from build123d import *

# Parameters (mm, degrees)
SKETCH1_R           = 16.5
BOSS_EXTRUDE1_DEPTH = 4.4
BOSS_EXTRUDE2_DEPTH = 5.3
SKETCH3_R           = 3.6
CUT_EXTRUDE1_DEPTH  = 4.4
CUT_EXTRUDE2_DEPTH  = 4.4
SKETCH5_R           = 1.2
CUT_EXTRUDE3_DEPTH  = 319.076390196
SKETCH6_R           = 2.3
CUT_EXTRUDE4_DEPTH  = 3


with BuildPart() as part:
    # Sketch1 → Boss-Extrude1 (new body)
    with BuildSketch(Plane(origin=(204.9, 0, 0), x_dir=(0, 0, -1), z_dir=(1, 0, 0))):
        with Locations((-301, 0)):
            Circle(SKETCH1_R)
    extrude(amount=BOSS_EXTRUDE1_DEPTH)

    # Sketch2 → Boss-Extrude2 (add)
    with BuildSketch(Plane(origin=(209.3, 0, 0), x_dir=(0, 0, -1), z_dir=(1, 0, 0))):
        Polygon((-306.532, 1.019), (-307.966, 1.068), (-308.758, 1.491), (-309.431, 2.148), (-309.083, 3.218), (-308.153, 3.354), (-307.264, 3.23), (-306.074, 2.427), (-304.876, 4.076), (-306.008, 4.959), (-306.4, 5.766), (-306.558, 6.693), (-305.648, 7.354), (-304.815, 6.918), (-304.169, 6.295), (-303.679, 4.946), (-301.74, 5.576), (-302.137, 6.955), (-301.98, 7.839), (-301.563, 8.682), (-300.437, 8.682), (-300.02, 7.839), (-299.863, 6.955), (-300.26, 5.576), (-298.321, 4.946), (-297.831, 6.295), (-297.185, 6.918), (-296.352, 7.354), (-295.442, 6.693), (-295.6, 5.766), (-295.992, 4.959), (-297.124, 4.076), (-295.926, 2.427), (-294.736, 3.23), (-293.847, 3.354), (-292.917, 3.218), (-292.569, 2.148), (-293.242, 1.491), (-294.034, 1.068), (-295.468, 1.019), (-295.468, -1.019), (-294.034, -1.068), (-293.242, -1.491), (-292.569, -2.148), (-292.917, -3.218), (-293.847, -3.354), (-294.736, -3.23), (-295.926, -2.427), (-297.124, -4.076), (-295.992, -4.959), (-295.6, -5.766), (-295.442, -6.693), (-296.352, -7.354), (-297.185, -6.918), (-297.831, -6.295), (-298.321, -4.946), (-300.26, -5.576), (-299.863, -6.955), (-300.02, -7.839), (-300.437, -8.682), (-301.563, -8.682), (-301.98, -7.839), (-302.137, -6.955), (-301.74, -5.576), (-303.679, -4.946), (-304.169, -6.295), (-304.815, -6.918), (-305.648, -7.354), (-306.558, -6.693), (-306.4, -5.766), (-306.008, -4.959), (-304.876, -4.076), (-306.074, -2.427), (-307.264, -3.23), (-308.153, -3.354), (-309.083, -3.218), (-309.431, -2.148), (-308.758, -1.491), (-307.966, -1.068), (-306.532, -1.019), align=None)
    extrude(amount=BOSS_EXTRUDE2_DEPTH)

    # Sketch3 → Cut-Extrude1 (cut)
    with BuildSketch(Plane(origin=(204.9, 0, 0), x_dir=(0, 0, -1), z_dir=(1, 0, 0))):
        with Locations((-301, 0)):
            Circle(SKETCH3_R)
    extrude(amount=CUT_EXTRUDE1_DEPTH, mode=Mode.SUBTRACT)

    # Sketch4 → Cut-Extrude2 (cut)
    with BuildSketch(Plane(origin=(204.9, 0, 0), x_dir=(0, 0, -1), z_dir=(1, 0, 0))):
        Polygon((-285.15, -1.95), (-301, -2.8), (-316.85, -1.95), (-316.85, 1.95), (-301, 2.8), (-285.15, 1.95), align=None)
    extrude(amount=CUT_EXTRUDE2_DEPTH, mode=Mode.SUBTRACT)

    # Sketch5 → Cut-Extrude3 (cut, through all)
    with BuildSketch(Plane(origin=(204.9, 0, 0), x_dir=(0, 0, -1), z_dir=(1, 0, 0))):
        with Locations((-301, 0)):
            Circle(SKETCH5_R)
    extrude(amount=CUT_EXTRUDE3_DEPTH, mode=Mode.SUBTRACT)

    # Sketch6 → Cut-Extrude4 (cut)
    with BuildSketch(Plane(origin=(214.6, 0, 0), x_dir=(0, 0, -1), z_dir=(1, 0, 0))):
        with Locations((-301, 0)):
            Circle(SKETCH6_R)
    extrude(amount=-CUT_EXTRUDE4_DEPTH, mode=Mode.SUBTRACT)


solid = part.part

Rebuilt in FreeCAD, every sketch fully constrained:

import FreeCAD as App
import Part
import Sketcher

V = App.Vector

doc = App.newDocument("Part")
body = doc.addObject("PartDesign::Body", "Body")

# Sketch on YZ plane
sketch1 = doc.addObject("Sketcher::SketchObject", "Sketch")
body.addObject(sketch1)
sketch1.AttachmentSupport = (doc.YZ_Plane, [""])
sketch1.MapMode = "FlatFace"
sketch1.AttachmentOffset = App.Placement(V(0, 0, 204.9), App.Rotation())
sketch1.addGeometry(Part.Circle(V(0, 301, 0), V(0, 0, 1), 16), False)
sketch1.addConstraint([
    Sketcher.Constraint("PointOnObject", 0, 3, -2),
    Sketcher.Constraint("Diameter", 0, 33.0),
    Sketcher.Constraint("DistanceY", -1, 1, 0, 3, 301.0),
])
pad1 = doc.addObject("PartDesign::Pad", "Pad")
body.addObject(pad1)
pad1.Profile = sketch1
pad1.Length = 4.4

# Sketch on YZ plane
sketch2 = doc.addObject("Sketcher::SketchObject", "Sketch001")
body.addObject(sketch2)
sketch2.AttachmentSupport = (doc.YZ_Plane, [""])
sketch2.MapMode = "FlatFace"
sketch2.AttachmentOffset = App.Placement(V(0, 0, 209.3), App.Rotation())
sketch2.addGeometry([
    Part.LineSegment(V(1.1, 308, 0), V(1, 306.5, 0)),  # 0
    Part.LineSegment(V(1, 306.5, 0), V(-1, 306.5, 0)),  # 1
    Part.LineSegment(V(-1, 306.5, 0), V(-1.1, 308, 0)),  # 2
    Part.LineSegment(V(-1.1, 308, 0), V(-1.5, 308.8, 0)),  # 3
    Part.LineSegment(V(-1.5, 308.8, 0), V(-2.1, 309.4, 0)),  # 4
    Part.LineSegment(V(-2.1, 309.4, 0), V(-3.2, 309.1, 0)),  # 5
    Part.LineSegment(V(-3.2, 309.1, 0), V(-3.4, 308.2, 0)),  # 6
    Part.LineSegment(V(-3.4, 308.2, 0), V(-3.2, 307.3, 0)),  # 7
    Part.LineSegment(V(-3.2, 307.3, 0), V(-2.4, 306.1, 0)),  # 8
    Part.LineSegment(V(-2.4, 306.1, 0), V(-4.1, 304.9, 0)),  # 9
    Part.LineSegment(V(-4.1, 304.9, 0), V(-5, 306, 0)),  # 10
    Part.LineSegment(V(-5, 306, 0), V(-5.8, 306.4, 0)),  # 11
    Part.LineSegment(V(-5.8, 306.4, 0), V(-6.7, 306.6, 0)),  # 12
    Part.LineSegment(V(-6.7, 306.6, 0), V(-7.4, 305.6, 0)),  # 13
    Part.LineSegment(V(-7.4, 305.6, 0), V(-6.9, 304.8, 0)),  # 14
    Part.LineSegment(V(-6.9, 304.8, 0), V(-6.3, 304.2, 0)),  # 15
    Part.LineSegment(V(-6.3, 304.2, 0), V(-4.9, 303.7, 0)),  # 16
    Part.LineSegment(V(-4.9, 303.7, 0), V(-5.6, 301.7, 0)),  # 17
    Part.LineSegment(V(-5.6, 301.7, 0), V(-7, 302.1, 0)),  # 18
    Part.LineSegment(V(-7, 302.1, 0), V(-7.8, 302, 0)),  # 19
    Part.LineSegment(V(-7.8, 302, 0), V(-8.7, 301.6, 0)),  # 20
    Part.LineSegment(V(-8.7, 301.6, 0), V(-8.7, 300.4, 0)),  # 21
    Part.LineSegment(V(-8.7, 300.4, 0), V(-7.8, 300, 0)),  # 22
    Part.LineSegment(V(-7.8, 300, 0), V(-7, 299.9, 0)),  # 23
    Part.LineSegment(V(-7, 299.9, 0), V(-5.6, 300.3, 0)),  # 24
    Part.LineSegment(V(-5.6, 300.3, 0), V(-4.9, 298.3, 0)),  # 25
    Part.LineSegment(V(-4.9, 298.3, 0), V(-6.3, 297.8, 0)),  # 26
    Part.LineSegment(V(-6.3, 297.8, 0), V(-6.9, 297.2, 0)),  # 27
    Part.LineSegment(V(-6.9, 297.2, 0), V(-7.4, 296.4, 0)),  # 28
    Part.LineSegment(V(-7.4, 296.4, 0), V(-6.7, 295.4, 0)),  # 29
    Part.LineSegment(V(-6.7, 295.4, 0), V(-5.8, 295.6, 0)),  # 30
    Part.LineSegment(V(-5.8, 295.6, 0), V(-5, 296, 0)),  # 31
    Part.LineSegment(V(-5, 296, 0), V(-4.1, 297.1, 0)),  # 32
    Part.LineSegment(V(-4.1, 297.1, 0), V(-2.4, 295.9, 0)),  # 33
    Part.LineSegment(V(-2.4, 295.9, 0), V(-3.2, 294.7, 0)),  # 34
    Part.LineSegment(V(-3.2, 294.7, 0), V(-3.4, 293.8, 0)),  # 35
    Part.LineSegment(V(-3.4, 293.8, 0), V(-3.2, 292.9, 0)),  # 36
    Part.LineSegment(V(-3.2, 292.9, 0), V(-2.1, 292.6, 0)),  # 37
    Part.LineSegment(V(-2.1, 292.6, 0), V(-1.5, 293.2, 0)),  # 38
    Part.LineSegment(V(-1.5, 293.2, 0), V(-1.1, 294, 0)),  # 39
    Part.LineSegment(V(-1.1, 294, 0), V(-1, 295.5, 0)),  # 40
    Part.LineSegment(V(-1, 295.5, 0), V(1, 295.5, 0)),  # 41
    Part.LineSegment(V(1, 295.5, 0), V(1.1, 294, 0)),  # 42
    Part.LineSegment(V(1.1, 294, 0), V(1.5, 293.2, 0)),  # 43
    Part.LineSegment(V(1.5, 293.2, 0), V(2.1, 292.6, 0)),  # 44
    Part.LineSegment(V(2.1, 292.6, 0), V(3.2, 292.9, 0)),  # 45
    Part.LineSegment(V(3.2, 292.9, 0), V(3.4, 293.8, 0)),  # 46
    Part.LineSegment(V(3.4, 293.8, 0), V(3.2, 294.7, 0)),  # 47
    Part.LineSegment(V(3.2, 294.7, 0), V(2.4, 295.9, 0)),  # 48
    Part.LineSegment(V(2.4, 295.9, 0), V(4.1, 297.1, 0)),  # 49
    Part.LineSegment(V(4.1, 297.1, 0), V(5, 296, 0)),  # 50
    Part.LineSegment(V(5, 296, 0), V(5.8, 295.6, 0)),  # 51
    Part.LineSegment(V(5.8, 295.6, 0), V(6.7, 295.4, 0)),  # 52
    Part.LineSegment(V(6.7, 295.4, 0), V(7.4, 296.4, 0)),  # 53
    Part.LineSegment(V(7.4, 296.4, 0), V(6.9, 297.2, 0)),  # 54
    Part.LineSegment(V(6.9, 297.2, 0), V(6.3, 297.8, 0)),  # 55
    Part.LineSegment(V(6.3, 297.8, 0), V(4.9, 298.3, 0)),  # 56
    Part.LineSegment(V(4.9, 298.3, 0), V(5.6, 300.3, 0)),  # 57
    Part.LineSegment(V(5.6, 300.3, 0), V(7, 299.9, 0)),  # 58
    Part.LineSegment(V(7, 299.9, 0), V(7.8, 300, 0)),  # 59
    Part.LineSegment(V(7.8, 300, 0), V(8.7, 300.4, 0)),  # 60
    Part.LineSegment(V(8.7, 300.4, 0), V(8.7, 301.6, 0)),  # 61
    Part.LineSegment(V(8.7, 301.6, 0), V(7.8, 302, 0)),  # 62
    Part.LineSegment(V(7.8, 302, 0), V(7, 302.1, 0)),  # 63
    Part.LineSegment(V(7, 302.1, 0), V(5.6, 301.7, 0)),  # 64
    Part.LineSegment(V(5.6, 301.7, 0), V(4.9, 303.7, 0)),  # 65
    Part.LineSegment(V(4.9, 303.7, 0), V(6.3, 304.2, 0)),  # 66
    Part.LineSegment(V(6.3, 304.2, 0), V(6.9, 304.8, 0)),  # 67
    Part.LineSegment(V(6.9, 304.8, 0), V(7.4, 305.6, 0)),  # 68
    Part.LineSegment(V(7.4, 305.6, 0), V(6.7, 306.6, 0)),  # 69
    Part.LineSegment(V(6.7, 306.6, 0), V(5.8, 306.4, 0)),  # 70
    Part.LineSegment(V(5.8, 306.4, 0), V(5, 306, 0)),  # 71
    Part.LineSegment(V(5, 306, 0), V(4.1, 304.9, 0)),  # 72
    Part.LineSegment(V(4.1, 304.9, 0), V(2.4, 306.1, 0)),  # 73
    Part.LineSegment(V(2.4, 306.1, 0), V(3.2, 307.3, 0)),  # 74
    Part.LineSegment(V(3.2, 307.3, 0), V(3.4, 308.2, 0)),  # 75
    Part.LineSegment(V(3.4, 308.2, 0), V(3.2, 309.1, 0)),  # 76
    Part.LineSegment(V(3.2, 309.1, 0), V(2.1, 309.4, 0)),  # 77
    Part.LineSegment(V(2.1, 309.4, 0), V(1.5, 308.8, 0)),  # 78
    Part.LineSegment(V(1.5, 308.8, 0), V(1.1, 308, 0)),  # 79
], False)
sketch2.addConstraint([
    Sketcher.Constraint("Coincident", 0, 2, 1, 1),
    Sketcher.Constraint("Coincident", 1, 2, 2, 1),
    Sketcher.Constraint("Coincident", 2, 2, 3, 1),
    Sketcher.Constraint("Coincident", 3, 2, 4, 1),
    Sketcher.Constraint("Coincident", 4, 2, 5, 1),
    Sketcher.Constraint("Coincident", 5, 2, 6, 1),
    Sketcher.Constraint("Coincident", 6, 2, 7, 1),
    Sketcher.Constraint("Coincident", 7, 2, 8, 1),
    Sketcher.Constraint("Coincident", 8, 2, 9, 1),
    Sketcher.Constraint("Coincident", 9, 2, 10, 1),
    Sketcher.Constraint("Coincident", 10, 2, 11, 1),
    Sketcher.Constraint("Coincident", 11, 2, 12, 1),
    Sketcher.Constraint("Coincident", 12, 2, 13, 1),
    Sketcher.Constraint("Coincident", 13, 2, 14, 1),
    Sketcher.Constraint("Coincident", 14, 2, 15, 1),
    Sketcher.Constraint("Coincident", 15, 2, 16, 1),
    Sketcher.Constraint("Coincident", 16, 2, 17, 1),
    Sketcher.Constraint("Coincident", 17, 2, 18, 1),
    Sketcher.Constraint("Coincident", 18, 2, 19, 1),
    Sketcher.Constraint("Coincident", 19, 2, 20, 1),
    Sketcher.Constraint("Coincident", 20, 2, 21, 1),
    Sketcher.Constraint("Coincident", 21, 2, 22, 1),
    Sketcher.Constraint("Coincident", 22, 2, 23, 1),
    Sketcher.Constraint("Coincident", 23, 2, 24, 1),
    Sketcher.Constraint("Coincident", 24, 2, 25, 1),
    Sketcher.Constraint("Coincident", 25, 2, 26, 1),
    Sketcher.Constraint("Coincident", 26, 2, 27, 1),
    Sketcher.Constraint("Coincident", 27, 2, 28, 1),
    Sketcher.Constraint("Coincident", 28, 2, 29, 1),
    Sketcher.Constraint("Coincident", 29, 2, 30, 1),
    Sketcher.Constraint("Coincident", 30, 2, 31, 1),
    Sketcher.Constraint("Coincident", 31, 2, 32, 1),
    Sketcher.Constraint("Coincident", 32, 2, 33, 1),
    Sketcher.Constraint("Coincident", 33, 2, 34, 1),
    Sketcher.Constraint("Coincident", 34, 2, 35, 1),
    Sketcher.Constraint("Coincident", 35, 2, 36, 1),
    Sketcher.Constraint("Coincident", 36, 2, 37, 1),
    Sketcher.Constraint("Coincident", 37, 2, 38, 1),
    Sketcher.Constraint("Coincident", 38, 2, 39, 1),
    Sketcher.Constraint("Coincident", 39, 2, 40, 1),
    Sketcher.Constraint("Coincident", 40, 2, 41, 1),
    Sketcher.Constraint("Coincident", 41, 2, 42, 1),
    Sketcher.Constraint("Coincident", 42, 2, 43, 1),
    Sketcher.Constraint("Coincident", 43, 2, 44, 1),
    Sketcher.Constraint("Coincident", 44, 2, 45, 1),
    Sketcher.Constraint("Coincident", 45, 2, 46, 1),
    Sketcher.Constraint("Coincident", 46, 2, 47, 1),
    Sketcher.Constraint("Coincident", 47, 2, 48, 1),
    Sketcher.Constraint("Coincident", 48, 2, 49, 1),
    Sketcher.Constraint("Coincident", 49, 2, 50, 1),
    Sketcher.Constraint("Coincident", 50, 2, 51, 1),
    Sketcher.Constraint("Coincident", 51, 2, 52, 1),
    Sketcher.Constraint("Coincident", 52, 2, 53, 1),
    Sketcher.Constraint("Coincident", 53, 2, 54, 1),
    Sketcher.Constraint("Coincident", 54, 2, 55, 1),
    Sketcher.Constraint("Coincident", 55, 2, 56, 1),
    Sketcher.Constraint("Coincident", 56, 2, 57, 1),
    Sketcher.Constraint("Coincident", 57, 2, 58, 1),
    Sketcher.Constraint("Coincident", 58, 2, 59, 1),
    Sketcher.Constraint("Coincident", 59, 2, 60, 1),
    Sketcher.Constraint("Coincident", 60, 2, 61, 1),
    Sketcher.Constraint("Coincident", 61, 2, 62, 1),
    Sketcher.Constraint("Coincident", 62, 2, 63, 1),
    Sketcher.Constraint("Coincident", 63, 2, 64, 1),
    Sketcher.Constraint("Coincident", 64, 2, 65, 1),
    Sketcher.Constraint("Coincident", 65, 2, 66, 1),
    Sketcher.Constraint("Coincident", 66, 2, 67, 1),
    Sketcher.Constraint("Coincident", 67, 2, 68, 1),
    Sketcher.Constraint("Coincident", 68, 2, 69, 1),
    Sketcher.Constraint("Coincident", 69, 2, 70, 1),
    Sketcher.Constraint("Coincident", 70, 2, 71, 1),
    Sketcher.Constraint("Coincident", 71, 2, 72, 1),
    Sketcher.Constraint("Coincident", 72, 2, 73, 1),
    Sketcher.Constraint("Coincident", 73, 2, 74, 1),
    Sketcher.Constraint("Coincident", 74, 2, 75, 1),
    Sketcher.Constraint("Coincident", 75, 2, 76, 1),
    Sketcher.Constraint("Coincident", 76, 2, 77, 1),
    Sketcher.Constraint("Coincident", 77, 2, 78, 1),
    Sketcher.Constraint("Coincident", 78, 2, 79, 1),
    Sketcher.Constraint("Coincident", 79, 2, 0, 1),
    Sketcher.Constraint("Horizontal", 1),
    Sketcher.Constraint("Vertical", 21),
    Sketcher.Constraint("Horizontal", 41),
    Sketcher.Constraint("Vertical", 61),
    Sketcher.Constraint("Symmetric", 39, 2, 42, 2, -2),
    Sketcher.Constraint("Symmetric", 38, 2, 43, 2, -2),
    Sketcher.Constraint("Symmetric", 37, 2, 44, 2, -2),
    Sketcher.Constraint("Symmetric", 36, 2, 45, 2, -2),
    Sketcher.Constraint("Symmetric", 35, 2, 46, 2, -2),
    Sketcher.Constraint("Symmetric", 34, 2, 47, 2, -2),
    Sketcher.Constraint("Symmetric", 33, 2, 48, 2, -2),
    Sketcher.Constraint("Symmetric", 32, 2, 49, 2, -2),
    Sketcher.Constraint("Symmetric", 31, 2, 50, 2, -2),
    Sketcher.Constraint("Symmetric", 30, 2, 51, 2, -2),
    Sketcher.Constraint("Symmetric", 29, 2, 52, 2, -2),
    Sketcher.Constraint("Symmetric", 28, 2, 53, 2, -2),
    Sketcher.Constraint("Symmetric", 27, 2, 54, 2, -2),
    Sketcher.Constraint("Symmetric", 26, 2, 55, 2, -2),
    Sketcher.Constraint("Symmetric", 25, 2, 56, 2, -2),
    Sketcher.Constraint("Symmetric", 24, 2, 57, 2, -2),
    Sketcher.Constraint("Symmetric", 23, 2, 58, 2, -2),
    Sketcher.Constraint("Symmetric", 22, 2, 59, 2, -2),
    Sketcher.Constraint("Symmetric", 21, 2, 60, 2, -2),
    Sketcher.Constraint("Symmetric", 19, 2, 62, 2, -2),
    Sketcher.Constraint("Symmetric", 18, 2, 63, 2, -2),
    Sketcher.Constraint("Symmetric", 17, 2, 64, 2, -2),
    Sketcher.Constraint("Symmetric", 16, 2, 65, 2, -2),
    Sketcher.Constraint("Symmetric", 15, 2, 66, 2, -2),
    Sketcher.Constraint("Symmetric", 14, 2, 67, 2, -2),
    Sketcher.Constraint("Symmetric", 13, 2, 68, 2, -2),
    Sketcher.Constraint("Symmetric", 12, 2, 69, 2, -2),
    Sketcher.Constraint("Symmetric", 11, 2, 70, 2, -2),
    Sketcher.Constraint("Symmetric", 10, 2, 71, 2, -2),
    Sketcher.Constraint("Symmetric", 9, 2, 72, 2, -2),
    Sketcher.Constraint("Symmetric", 8, 2, 73, 2, -2),
    Sketcher.Constraint("Symmetric", 7, 2, 74, 2, -2),
    Sketcher.Constraint("Symmetric", 6, 2, 75, 2, -2),
    Sketcher.Constraint("Symmetric", 5, 2, 76, 2, -2),
    Sketcher.Constraint("Symmetric", 4, 2, 77, 2, -2),
    Sketcher.Constraint("Symmetric", 3, 2, 78, 2, -2),
    Sketcher.Constraint("Symmetric", 2, 2, 79, 2, -2),
    Sketcher.Constraint("Parallel", 0, 40),
    Sketcher.Constraint("Parallel", 2, 42),
    Sketcher.Constraint("Parallel", 3, 43),
    Sketcher.Constraint("Parallel", 4, 44),
    Sketcher.Constraint("Parallel", 5, 45),
    Sketcher.Constraint("Parallel", 6, 46),
    Sketcher.Constraint("Parallel", 7, 47),
    Sketcher.Constraint("Parallel", 8, 48),
    Sketcher.Constraint("Parallel", 9, 49),
    Sketcher.Constraint("Parallel", 10, 50),
    Sketcher.Constraint("Parallel", 11, 51),
    Sketcher.Constraint("Parallel", 12, 52),
    Sketcher.Constraint("Parallel", 13, 53),
    Sketcher.Constraint("Parallel", 14, 54),
    Sketcher.Constraint("Parallel", 15, 55),
    Sketcher.Constraint("Parallel", 16, 56),
    Sketcher.Constraint("Parallel", 17, 57),
    Sketcher.Constraint("Parallel", 18, 58),
    Sketcher.Constraint("Parallel", 19, 59),
    Sketcher.Constraint("Parallel", 20, 60),
    Sketcher.Constraint("Parallel", 22, 62),
    Sketcher.Constraint("Vertical", 19, 2, 22, 2),
    Sketcher.Constraint("Vertical", 18, 2, 23, 2),
    Sketcher.Constraint("Vertical", 17, 2, 24, 2),
    Sketcher.Constraint("Vertical", 16, 2, 25, 2),
    Sketcher.Constraint("Vertical", 15, 2, 26, 2),
    Sketcher.Constraint("Vertical", 14, 2, 27, 2),
    Sketcher.Constraint("Vertical", 13, 2, 28, 2),
    Sketcher.Constraint("Vertical", 12, 2, 29, 2),
    Sketcher.Constraint("Vertical", 11, 2, 30, 2),
    Sketcher.Constraint("Vertical", 10, 2, 31, 2),
    Sketcher.Constraint("Vertical", 9, 2, 32, 2),
    Sketcher.Constraint("Vertical", 8, 2, 33, 2),
    Sketcher.Constraint("Vertical", 7, 2, 34, 2),
    Sketcher.Constraint("Vertical", 6, 2, 35, 2),
    Sketcher.Constraint("Vertical", 5, 2, 36, 2),
    Sketcher.Constraint("Vertical", 4, 2, 37, 2),
    Sketcher.Constraint("Vertical", 3, 2, 38, 2),
    Sketcher.Constraint("Vertical", 2, 2, 39, 2),
    Sketcher.Constraint("Vertical", 1, 2, 40, 2),
    Sketcher.Constraint("Vertical", 0, 2, 41, 2),
    Sketcher.Constraint("DistanceY", -1, 1, 11, 2, 306.4),
    Sketcher.Constraint("DistanceY", -1, 1, 30, 2, 295.6),
    Sketcher.Constraint("DistanceX", 1, 2, 1, 1, 2.038),
    Sketcher.Constraint("DistanceY", 21, 2, 21, 1, 1.126),
    Sketcher.Constraint("DistanceX", 7, 2, -1, 1, 3.23),
    Sketcher.Constraint("DistanceY", -1, 1, 17, 2, 301.74),
    Sketcher.Constraint("DistanceY", -1, 1, 19, 2, 301.98),
    Sketcher.Constraint("DistanceY", -1, 1, 0, 2, 306.532),
    Sketcher.Constraint("DistanceX", 2, 2, -1, 1, 1.068),
    Sketcher.Constraint("DistanceY", -1, 1, 2, 2, 307.966),
    Sketcher.Constraint("DistanceX", 3, 2, -1, 1, 1.491),
    Sketcher.Constraint("DistanceY", -1, 1, 3, 2, 308.758),
    Sketcher.Constraint("DistanceX", 4, 2, -1, 1, 2.148),
    Sketcher.Constraint("DistanceY", -1, 1, 4, 2, 309.431),
    Sketcher.Constraint("DistanceX", 5, 2, -1, 1, 3.218),
    Sketcher.Constraint("DistanceY", -1, 1, 5, 2, 309.083),
    Sketcher.Constraint("DistanceX", 6, 2, -1, 1, 3.354),
    Sketcher.Constraint("DistanceY", -1, 1, 6, 2, 308.153),
    Sketcher.Constraint("DistanceY", -1, 1, 7, 2, 307.264),
    Sketcher.Constraint("DistanceX", 8, 2, -1, 1, 2.427),
    Sketcher.Constraint("DistanceY", -1, 1, 8, 2, 306.074),
    Sketcher.Constraint("DistanceX", 9, 2, -1, 1, 4.076),
    Sketcher.Constraint("DistanceY", -1, 1, 9, 2, 304.876),
    Sketcher.Constraint("DistanceX", 10, 2, -1, 1, 4.959),
    Sketcher.Constraint("DistanceY", -1, 1, 10, 2, 306.008),
    Sketcher.Constraint("DistanceX", 11, 2, -1, 1, 5.766),
    Sketcher.Constraint("DistanceX", 12, 2, -1, 1, 6.693),
    Sketcher.Constraint("DistanceY", -1, 1, 12, 2, 306.558),
    Sketcher.Constraint("DistanceX", 13, 2, -1, 1, 7.354),
    Sketcher.Constraint("DistanceY", -1, 1, 13, 2, 305.648),
    Sketcher.Constraint("DistanceX", 14, 2, -1, 1, 6.918),
    Sketcher.Constraint("DistanceY", -1, 1, 14, 2, 304.815),
    Sketcher.Constraint("DistanceX", 15, 2, -1, 1, 6.295),
    Sketcher.Constraint("DistanceY", -1, 1, 15, 2, 304.169),
    Sketcher.Constraint("DistanceX", 16, 2, -1, 1, 4.946),
    Sketcher.Constraint("DistanceY", -1, 1, 16, 2, 303.679),
    Sketcher.Constraint("DistanceX", 17, 2, -1, 1, 5.576),
    Sketcher.Constraint("DistanceX", 18, 2, -1, 1, 6.955),
    Sketcher.Constraint("DistanceY", -1, 1, 18, 2, 302.137),
    Sketcher.Constraint("DistanceX", 19, 2, -1, 1, 7.839),
    Sketcher.Constraint("DistanceX", 20, 2, -1, 1, 8.682),
])
pad2 = doc.addObject("PartDesign::Pad", "Pad001")
body.addObject(pad2)
pad2.Profile = sketch2
pad2.Length = 5.3

# Sketch on YZ plane
sketch3 = doc.addObject("Sketcher::SketchObject", "Sketch002")
body.addObject(sketch3)
sketch3.AttachmentSupport = (doc.YZ_Plane, [""])
sketch3.MapMode = "FlatFace"
sketch3.AttachmentOffset = App.Placement(V(0, 0, 204.9), App.Rotation())
sketch3.addGeometry(Part.Circle(V(0, 301, 0), V(0, 0, 1), 3.6), False)
sketch3.addConstraint([
    Sketcher.Constraint("PointOnObject", 0, 3, -2),
    Sketcher.Constraint("Diameter", 0, 7.2),
    Sketcher.Constraint("DistanceY", -1, 1, 0, 3, 301.0),
])
pocket1 = doc.addObject("PartDesign::Pocket", "Pocket")
body.addObject(pocket1)
pocket1.Profile = sketch3
pocket1.Length = 4.4
pocket1.Reversed = True

# Sketch on YZ plane
sketch4 = doc.addObject("Sketcher::SketchObject", "Sketch003")
body.addObject(sketch4)
sketch4.AttachmentSupport = (doc.YZ_Plane, [""])
sketch4.MapMode = "FlatFace"
sketch4.AttachmentOffset = App.Placement(V(0, 0, 204.9), App.Rotation())
sketch4.addGeometry([
    Part.LineSegment(V(-2.8, 301, 0), V(-1.9, 285.1, 0)),  # 0
    Part.LineSegment(V(-1.9, 285.1, 0), V(1.9, 285.1, 0)),  # 1
    Part.LineSegment(V(1.9, 285.1, 0), V(2.8, 301, 0)),  # 2
    Part.LineSegment(V(2.8, 301, 0), V(1.9, 316.9, 0)),  # 3
    Part.LineSegment(V(1.9, 316.9, 0), V(-1.9, 316.9, 0)),  # 4
    Part.LineSegment(V(-1.9, 316.9, 0), V(-2.8, 301, 0)),  # 5
], False)
sketch4.addConstraint([
    Sketcher.Constraint("Coincident", 0, 2, 1, 1),
    Sketcher.Constraint("Coincident", 1, 2, 2, 1),
    Sketcher.Constraint("Coincident", 2, 2, 3, 1),
    Sketcher.Constraint("Coincident", 3, 2, 4, 1),
    Sketcher.Constraint("Coincident", 4, 2, 5, 1),
    Sketcher.Constraint("Coincident", 5, 2, 0, 1),
    Sketcher.Constraint("Horizontal", 1),
    Sketcher.Constraint("Horizontal", 4),
    Sketcher.Constraint("Symmetric", 2, 2, 5, 2, -2),
    Sketcher.Constraint("Parallel", 0, 3),
    Sketcher.Constraint("Parallel", 2, 5),
    Sketcher.Constraint("Vertical", 1, 2, 3, 2),
    Sketcher.Constraint("Vertical", 0, 2, 4, 2),
    Sketcher.Constraint("DistanceX", 1, 1, 1, 2, 3.9),
    Sketcher.Constraint("DistanceY", -1, 1, 2, 2, 301.0),
    Sketcher.Constraint("DistanceX", -1, 1, 2, 2, 2.8),
    Sketcher.Constraint("DistanceY", 1, 2, 3, 2, 31.7),
])
pocket2 = doc.addObject("PartDesign::Pocket", "Pocket001")
body.addObject(pocket2)
pocket2.Profile = sketch4
pocket2.Length = 4.4
pocket2.Reversed = True

# Sketch on YZ plane
sketch5 = doc.addObject("Sketcher::SketchObject", "Sketch004")
body.addObject(sketch5)
sketch5.AttachmentSupport = (doc.YZ_Plane, [""])
sketch5.MapMode = "FlatFace"
sketch5.AttachmentOffset = App.Placement(V(0, 0, 204.9), App.Rotation())
sketch5.addGeometry(Part.Circle(V(0, 301, 0), V(0, 0, 1), 1.2), False)
sketch5.addConstraint([
    Sketcher.Constraint("PointOnObject", 0, 3, -2),
    Sketcher.Constraint("Diameter", 0, 2.4),
    Sketcher.Constraint("DistanceY", -1, 1, 0, 3, 301.0),
])
pocket3 = doc.addObject("PartDesign::Pocket", "Pocket002")
body.addObject(pocket3)
pocket3.Profile = sketch5
pocket3.Type = "ThroughAll"
pocket3.Reversed = True

# Sketch on YZ plane
sketch6 = doc.addObject("Sketcher::SketchObject", "Sketch005")
body.addObject(sketch6)
sketch6.AttachmentSupport = (doc.YZ_Plane, [""])
sketch6.MapMode = "FlatFace"
sketch6.AttachmentOffset = App.Placement(V(0, 0, 214.6), App.Rotation())
sketch6.addGeometry(Part.Circle(V(0, 301, 0), V(0, 0, 1), 2.3), False)
sketch6.addConstraint([
    Sketcher.Constraint("PointOnObject", 0, 3, -2),
    Sketcher.Constraint("Diameter", 0, 4.6),
    Sketcher.Constraint("DistanceY", -1, 1, 0, 3, 301.0),
])
pocket4 = doc.addObject("PartDesign::Pocket", "Pocket003")
body.addObject(pocket4)
pocket4.Profile = sketch6
pocket4.Length = 3

doc.recompute()
